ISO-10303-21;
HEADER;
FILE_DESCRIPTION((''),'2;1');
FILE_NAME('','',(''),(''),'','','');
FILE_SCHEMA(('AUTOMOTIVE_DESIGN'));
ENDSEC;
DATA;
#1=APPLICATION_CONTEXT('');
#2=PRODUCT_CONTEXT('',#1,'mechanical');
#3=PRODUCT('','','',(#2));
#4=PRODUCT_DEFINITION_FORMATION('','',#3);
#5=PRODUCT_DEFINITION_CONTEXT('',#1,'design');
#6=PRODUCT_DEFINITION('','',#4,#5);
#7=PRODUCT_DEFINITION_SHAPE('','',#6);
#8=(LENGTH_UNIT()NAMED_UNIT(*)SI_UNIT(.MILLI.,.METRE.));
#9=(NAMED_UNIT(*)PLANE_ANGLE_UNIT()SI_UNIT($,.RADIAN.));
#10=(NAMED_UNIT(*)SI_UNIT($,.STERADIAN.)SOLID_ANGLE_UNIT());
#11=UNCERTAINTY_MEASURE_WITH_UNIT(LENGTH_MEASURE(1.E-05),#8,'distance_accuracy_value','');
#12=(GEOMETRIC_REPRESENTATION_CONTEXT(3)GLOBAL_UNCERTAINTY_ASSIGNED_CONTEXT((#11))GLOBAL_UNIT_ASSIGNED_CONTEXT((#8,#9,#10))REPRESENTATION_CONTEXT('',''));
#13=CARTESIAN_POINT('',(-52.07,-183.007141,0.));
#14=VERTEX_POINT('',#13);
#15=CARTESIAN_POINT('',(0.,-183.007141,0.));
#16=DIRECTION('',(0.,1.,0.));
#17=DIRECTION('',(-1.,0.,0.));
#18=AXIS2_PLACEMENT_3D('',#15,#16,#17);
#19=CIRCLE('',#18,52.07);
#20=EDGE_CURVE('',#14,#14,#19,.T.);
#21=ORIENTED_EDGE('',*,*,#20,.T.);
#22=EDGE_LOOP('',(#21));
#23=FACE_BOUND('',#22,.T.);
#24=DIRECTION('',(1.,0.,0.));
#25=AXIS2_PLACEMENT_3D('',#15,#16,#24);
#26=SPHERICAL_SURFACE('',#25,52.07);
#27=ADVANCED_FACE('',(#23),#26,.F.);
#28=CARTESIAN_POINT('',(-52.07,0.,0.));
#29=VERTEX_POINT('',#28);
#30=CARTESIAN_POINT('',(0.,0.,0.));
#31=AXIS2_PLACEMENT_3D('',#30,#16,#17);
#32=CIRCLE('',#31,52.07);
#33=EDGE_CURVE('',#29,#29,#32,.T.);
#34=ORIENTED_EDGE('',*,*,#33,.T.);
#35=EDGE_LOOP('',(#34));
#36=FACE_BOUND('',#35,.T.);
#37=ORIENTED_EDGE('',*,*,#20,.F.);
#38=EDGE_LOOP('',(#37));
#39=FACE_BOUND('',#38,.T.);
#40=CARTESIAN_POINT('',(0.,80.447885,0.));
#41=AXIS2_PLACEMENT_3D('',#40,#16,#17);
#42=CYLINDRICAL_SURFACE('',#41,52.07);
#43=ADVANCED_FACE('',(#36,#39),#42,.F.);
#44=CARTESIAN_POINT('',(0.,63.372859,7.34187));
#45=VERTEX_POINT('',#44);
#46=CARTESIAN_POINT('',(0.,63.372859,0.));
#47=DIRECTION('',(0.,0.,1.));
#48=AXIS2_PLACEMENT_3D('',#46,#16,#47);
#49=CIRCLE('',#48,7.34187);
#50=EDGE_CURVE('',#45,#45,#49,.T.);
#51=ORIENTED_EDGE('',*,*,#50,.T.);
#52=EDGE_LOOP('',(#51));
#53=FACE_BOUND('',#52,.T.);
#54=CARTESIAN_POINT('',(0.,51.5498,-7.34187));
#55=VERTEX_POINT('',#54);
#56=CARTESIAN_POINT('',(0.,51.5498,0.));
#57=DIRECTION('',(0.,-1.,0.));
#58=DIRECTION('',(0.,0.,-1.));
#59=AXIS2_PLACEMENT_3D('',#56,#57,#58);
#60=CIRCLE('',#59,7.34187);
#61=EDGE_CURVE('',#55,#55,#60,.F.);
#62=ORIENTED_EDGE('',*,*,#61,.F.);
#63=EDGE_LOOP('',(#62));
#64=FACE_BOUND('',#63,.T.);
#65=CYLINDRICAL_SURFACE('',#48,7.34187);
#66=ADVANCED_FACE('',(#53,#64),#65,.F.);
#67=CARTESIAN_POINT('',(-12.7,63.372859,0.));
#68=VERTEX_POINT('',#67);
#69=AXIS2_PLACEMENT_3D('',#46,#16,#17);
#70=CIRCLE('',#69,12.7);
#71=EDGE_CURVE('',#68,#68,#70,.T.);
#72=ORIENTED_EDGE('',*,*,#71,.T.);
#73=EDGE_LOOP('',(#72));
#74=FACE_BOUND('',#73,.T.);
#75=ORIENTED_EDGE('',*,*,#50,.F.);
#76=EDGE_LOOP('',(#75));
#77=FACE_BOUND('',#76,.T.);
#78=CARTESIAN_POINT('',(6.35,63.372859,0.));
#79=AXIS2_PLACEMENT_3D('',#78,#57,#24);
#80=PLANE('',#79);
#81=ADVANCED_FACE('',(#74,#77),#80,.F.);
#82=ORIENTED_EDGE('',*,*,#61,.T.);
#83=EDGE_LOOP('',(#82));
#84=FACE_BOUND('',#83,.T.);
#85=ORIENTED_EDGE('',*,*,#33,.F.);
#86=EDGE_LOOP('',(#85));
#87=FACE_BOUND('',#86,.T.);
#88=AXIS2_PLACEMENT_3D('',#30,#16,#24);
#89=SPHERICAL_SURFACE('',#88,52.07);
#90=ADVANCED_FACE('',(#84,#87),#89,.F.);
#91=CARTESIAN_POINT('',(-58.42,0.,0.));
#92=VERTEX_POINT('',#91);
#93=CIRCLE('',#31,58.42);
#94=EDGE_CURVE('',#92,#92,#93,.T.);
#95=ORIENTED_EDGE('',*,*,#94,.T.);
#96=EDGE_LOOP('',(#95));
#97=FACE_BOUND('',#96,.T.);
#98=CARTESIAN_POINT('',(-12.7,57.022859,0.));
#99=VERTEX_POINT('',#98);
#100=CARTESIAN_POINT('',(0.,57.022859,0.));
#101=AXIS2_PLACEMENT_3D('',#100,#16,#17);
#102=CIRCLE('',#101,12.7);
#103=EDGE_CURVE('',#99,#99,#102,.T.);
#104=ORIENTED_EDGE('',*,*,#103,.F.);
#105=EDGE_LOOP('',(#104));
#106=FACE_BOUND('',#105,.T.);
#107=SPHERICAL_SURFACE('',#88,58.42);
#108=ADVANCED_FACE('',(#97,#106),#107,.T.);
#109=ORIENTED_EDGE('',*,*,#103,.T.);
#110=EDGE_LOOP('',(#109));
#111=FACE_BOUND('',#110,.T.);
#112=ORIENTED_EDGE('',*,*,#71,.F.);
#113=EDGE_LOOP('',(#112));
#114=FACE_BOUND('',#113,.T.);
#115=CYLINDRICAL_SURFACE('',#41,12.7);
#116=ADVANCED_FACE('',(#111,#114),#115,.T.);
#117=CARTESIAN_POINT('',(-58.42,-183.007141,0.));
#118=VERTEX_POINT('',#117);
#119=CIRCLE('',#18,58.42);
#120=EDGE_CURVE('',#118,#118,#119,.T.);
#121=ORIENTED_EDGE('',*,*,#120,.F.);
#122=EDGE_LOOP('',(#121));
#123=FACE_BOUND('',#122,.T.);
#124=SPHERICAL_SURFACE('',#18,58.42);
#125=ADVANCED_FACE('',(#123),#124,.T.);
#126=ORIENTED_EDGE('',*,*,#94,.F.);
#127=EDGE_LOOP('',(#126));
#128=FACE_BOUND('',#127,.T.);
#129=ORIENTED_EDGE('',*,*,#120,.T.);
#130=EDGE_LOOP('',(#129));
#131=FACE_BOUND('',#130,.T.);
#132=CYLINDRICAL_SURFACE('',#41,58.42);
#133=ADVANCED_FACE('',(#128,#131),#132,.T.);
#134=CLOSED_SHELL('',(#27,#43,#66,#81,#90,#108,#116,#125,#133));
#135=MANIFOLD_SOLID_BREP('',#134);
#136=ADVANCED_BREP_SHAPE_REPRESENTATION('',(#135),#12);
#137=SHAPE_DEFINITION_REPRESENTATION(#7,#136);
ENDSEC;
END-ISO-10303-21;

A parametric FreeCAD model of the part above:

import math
import FreeCAD as App
import Part
import Sketcher
from FreeCAD import Vector
Q = App.Units.Quantity

doc = App.newDocument("Part")
body = doc.addObject("PartDesign::Body", "Body")

sketch1 = body.newObject("Sketcher::SketchObject", "Sketch")
sketch1.AttachmentSupport = (doc.getObject("XY_Plane"), [""])
sketch1.MapMode = "FlatFace"
sketch1.addGeometry(Part.LineSegment(Vector(12.7, 57, 0), Vector(12.7, 63.4, 0)), False)
sketch1.addGeometry(Part.LineSegment(Vector(12.7, 63.4, 0), Vector(2.5, 63.4, 0)), False)
sketch1.addGeometry(Part.LineSegment(Vector(2.5, 63.4, 0), Vector(2.5, 52, 0)), False)
sketch1.addGeometry(Part.ArcOfCircle(Part.Circle(Vector(0, 0, 0), Vector(0, 0, 1), 52.1), math.radians(83), math.radians(87.2)), False)
sketch1.addGeometry(Part.ArcOfCircle(Part.Circle(Vector(0, 0, 0), Vector(0, 0, 1), 52.1), math.radians(0), math.radians(83)), False)
sketch1.addGeometry(Part.LineSegment(Vector(52.1, 0, 0), Vector(52.1, -183, 0)), False)
sketch1.addGeometry(Part.ArcOfCircle(Part.Circle(Vector(0, -183, 0), Vector(0, 0, 1), 52.1), math.radians(-90), math.radians(0)), False)
sketch1.addGeometry(Part.LineSegment(Vector(0, -235.1, 0), Vector(0, -241.4, 0)), False)
sketch1.addGeometry(Part.ArcOfCircle(Part.Circle(Vector(0, -183, 0), Vector(0, 0, 1), 58.4), math.radians(-90), math.radians(0)), False)
sketch1.addGeometry(Part.LineSegment(Vector(58.4, -183, 0), Vector(58.4, 0, 0)), False)
sketch1.addGeometry(Part.ArcOfCircle(Part.Circle(Vector(0, 0, 0), Vector(0, 0, 1), 58.4), math.radians(0), math.radians(77)), False)
sketch1.addConstraint(Sketcher.Constraint("Coincident", 0, 2, 1, 1))
sketch1.addConstraint(Sketcher.Constraint("Coincident", 1, 2, 2, 1))
sketch1.addConstraint(Sketcher.Constraint("Coincident", 2, 2, 3, 2))
sketch1.addConstraint(Sketcher.Constraint("Tangent", 3, 1, 4, 2))
sketch1.addConstraint(Sketcher.Constraint("Tangent", 4, 1, 5, 1))
sketch1.addConstraint(Sketcher.Constraint("Tangent", 5, 2, 6, 2))
sketch1.addConstraint(Sketcher.Constraint("Coincident", 6, 1, 7, 1))
sketch1.addConstraint(Sketcher.Constraint("Coincident", 7, 2, 8, 1))
sketch1.addConstraint(Sketcher.Constraint("Tangent", 8, 2, 9, 1))
sketch1.addConstraint(Sketcher.Constraint("Tangent", 9, 2, 10, 1))
sketch1.addConstraint(Sketcher.Constraint("Coincident", 10, 2, 0, 1))
sketch1.addConstraint(Sketcher.Constraint("Vertical", 0))
sketch1.addConstraint(Sketcher.Constraint("Horizontal", 1))
sketch1.addConstraint(Sketcher.Constraint("Vertical", 2))
sketch1.addConstraint(Sketcher.Constraint("Vertical", 5))
sketch1.addConstraint(Sketcher.Constraint("Vertical", 7))
sketch1.addConstraint(Sketcher.Constraint("Vertical", 9))
sketch1.addConstraint(Sketcher.Constraint("Coincident", 3, 3, -1, 1))
sketch1.addConstraint(Sketcher.Constraint("Coincident", 10, 3, -1, 1))
sketch1.addConstraint(Sketcher.Constraint("Coincident", 8, 3, 6, 3))
sketch1.addConstraint(Sketcher.Constraint("Equal", 3, 4))
sketch1.addConstraint(Sketcher.Constraint("Equal", 4, 6))
sketch1.addConstraint(Sketcher.Constraint("PointOnObject", 6, 1, -2))
sketch1.addConstraint(Sketcher.Constraint("Equal", 0, 7))
sketch1.addConstraint(Sketcher.Constraint("Radius", 8, Q("2.3 in")))
sketch1.addConstraint(Sketcher.Constraint("Radius", 3, Q("2.05 in")))
sketch1.addConstraint(Sketcher.Constraint("DistanceX", 1, 2, 1, 1, Q("0.4 in")))
sketch1.addConstraint(Sketcher.Constraint("DistanceX", -1, 1, 0, 2, Q("0.5 in")))
sketch1.addConstraint(Sketcher.Constraint("DistanceY", 6, 3, 0, 2, Q("9.7 in")))
sketch1.addConstraint(Sketcher.Constraint("DistanceX", 3, 1, 4, 1, Q("1.8 in")))
revolution = body.newObject("PartDesign::Revolution", "Revolution")
revolution.Profile = sketch1
revolution.ReferenceAxis = (sketch1, ["V_Axis"])
revolution.Angle = 360

sketch2 = body.newObject("Sketcher::SketchObject", "Sketch001")
sketch2.AttachmentSupport = (doc.getObject("XZ_Plane"), [""])
sketch2.MapMode = "FlatFace"
sketch2.AttachmentOffset = App.Placement(Vector(0, 0, -63.372859), App.Rotation())
sketch2.addGeometry(Part.Circle(Vector(0, 0, 0), Vector(0, 0, 1), 7), False)
sketch2.addConstraint(Sketcher.Constraint("Coincident", 0, 3, -1, 1))
sketch2.addConstraint(Sketcher.Constraint("Diameter", 0, Q("0.5781 in")))
doc.recompute()
hole = body.newObject("PartDesign::Hole", "Hole")
hole.Profile = sketch2
hole.ThreadType = "None"
hole.Diameter = Q("0.5781 in")
hole.DepthType = "Dimension"
hole.Depth = Q("1.53 in")
hole.DrillPoint = "Angled"
hole.DrillPointAngle = 118
hole.Reversed = True

doc.recompute()
